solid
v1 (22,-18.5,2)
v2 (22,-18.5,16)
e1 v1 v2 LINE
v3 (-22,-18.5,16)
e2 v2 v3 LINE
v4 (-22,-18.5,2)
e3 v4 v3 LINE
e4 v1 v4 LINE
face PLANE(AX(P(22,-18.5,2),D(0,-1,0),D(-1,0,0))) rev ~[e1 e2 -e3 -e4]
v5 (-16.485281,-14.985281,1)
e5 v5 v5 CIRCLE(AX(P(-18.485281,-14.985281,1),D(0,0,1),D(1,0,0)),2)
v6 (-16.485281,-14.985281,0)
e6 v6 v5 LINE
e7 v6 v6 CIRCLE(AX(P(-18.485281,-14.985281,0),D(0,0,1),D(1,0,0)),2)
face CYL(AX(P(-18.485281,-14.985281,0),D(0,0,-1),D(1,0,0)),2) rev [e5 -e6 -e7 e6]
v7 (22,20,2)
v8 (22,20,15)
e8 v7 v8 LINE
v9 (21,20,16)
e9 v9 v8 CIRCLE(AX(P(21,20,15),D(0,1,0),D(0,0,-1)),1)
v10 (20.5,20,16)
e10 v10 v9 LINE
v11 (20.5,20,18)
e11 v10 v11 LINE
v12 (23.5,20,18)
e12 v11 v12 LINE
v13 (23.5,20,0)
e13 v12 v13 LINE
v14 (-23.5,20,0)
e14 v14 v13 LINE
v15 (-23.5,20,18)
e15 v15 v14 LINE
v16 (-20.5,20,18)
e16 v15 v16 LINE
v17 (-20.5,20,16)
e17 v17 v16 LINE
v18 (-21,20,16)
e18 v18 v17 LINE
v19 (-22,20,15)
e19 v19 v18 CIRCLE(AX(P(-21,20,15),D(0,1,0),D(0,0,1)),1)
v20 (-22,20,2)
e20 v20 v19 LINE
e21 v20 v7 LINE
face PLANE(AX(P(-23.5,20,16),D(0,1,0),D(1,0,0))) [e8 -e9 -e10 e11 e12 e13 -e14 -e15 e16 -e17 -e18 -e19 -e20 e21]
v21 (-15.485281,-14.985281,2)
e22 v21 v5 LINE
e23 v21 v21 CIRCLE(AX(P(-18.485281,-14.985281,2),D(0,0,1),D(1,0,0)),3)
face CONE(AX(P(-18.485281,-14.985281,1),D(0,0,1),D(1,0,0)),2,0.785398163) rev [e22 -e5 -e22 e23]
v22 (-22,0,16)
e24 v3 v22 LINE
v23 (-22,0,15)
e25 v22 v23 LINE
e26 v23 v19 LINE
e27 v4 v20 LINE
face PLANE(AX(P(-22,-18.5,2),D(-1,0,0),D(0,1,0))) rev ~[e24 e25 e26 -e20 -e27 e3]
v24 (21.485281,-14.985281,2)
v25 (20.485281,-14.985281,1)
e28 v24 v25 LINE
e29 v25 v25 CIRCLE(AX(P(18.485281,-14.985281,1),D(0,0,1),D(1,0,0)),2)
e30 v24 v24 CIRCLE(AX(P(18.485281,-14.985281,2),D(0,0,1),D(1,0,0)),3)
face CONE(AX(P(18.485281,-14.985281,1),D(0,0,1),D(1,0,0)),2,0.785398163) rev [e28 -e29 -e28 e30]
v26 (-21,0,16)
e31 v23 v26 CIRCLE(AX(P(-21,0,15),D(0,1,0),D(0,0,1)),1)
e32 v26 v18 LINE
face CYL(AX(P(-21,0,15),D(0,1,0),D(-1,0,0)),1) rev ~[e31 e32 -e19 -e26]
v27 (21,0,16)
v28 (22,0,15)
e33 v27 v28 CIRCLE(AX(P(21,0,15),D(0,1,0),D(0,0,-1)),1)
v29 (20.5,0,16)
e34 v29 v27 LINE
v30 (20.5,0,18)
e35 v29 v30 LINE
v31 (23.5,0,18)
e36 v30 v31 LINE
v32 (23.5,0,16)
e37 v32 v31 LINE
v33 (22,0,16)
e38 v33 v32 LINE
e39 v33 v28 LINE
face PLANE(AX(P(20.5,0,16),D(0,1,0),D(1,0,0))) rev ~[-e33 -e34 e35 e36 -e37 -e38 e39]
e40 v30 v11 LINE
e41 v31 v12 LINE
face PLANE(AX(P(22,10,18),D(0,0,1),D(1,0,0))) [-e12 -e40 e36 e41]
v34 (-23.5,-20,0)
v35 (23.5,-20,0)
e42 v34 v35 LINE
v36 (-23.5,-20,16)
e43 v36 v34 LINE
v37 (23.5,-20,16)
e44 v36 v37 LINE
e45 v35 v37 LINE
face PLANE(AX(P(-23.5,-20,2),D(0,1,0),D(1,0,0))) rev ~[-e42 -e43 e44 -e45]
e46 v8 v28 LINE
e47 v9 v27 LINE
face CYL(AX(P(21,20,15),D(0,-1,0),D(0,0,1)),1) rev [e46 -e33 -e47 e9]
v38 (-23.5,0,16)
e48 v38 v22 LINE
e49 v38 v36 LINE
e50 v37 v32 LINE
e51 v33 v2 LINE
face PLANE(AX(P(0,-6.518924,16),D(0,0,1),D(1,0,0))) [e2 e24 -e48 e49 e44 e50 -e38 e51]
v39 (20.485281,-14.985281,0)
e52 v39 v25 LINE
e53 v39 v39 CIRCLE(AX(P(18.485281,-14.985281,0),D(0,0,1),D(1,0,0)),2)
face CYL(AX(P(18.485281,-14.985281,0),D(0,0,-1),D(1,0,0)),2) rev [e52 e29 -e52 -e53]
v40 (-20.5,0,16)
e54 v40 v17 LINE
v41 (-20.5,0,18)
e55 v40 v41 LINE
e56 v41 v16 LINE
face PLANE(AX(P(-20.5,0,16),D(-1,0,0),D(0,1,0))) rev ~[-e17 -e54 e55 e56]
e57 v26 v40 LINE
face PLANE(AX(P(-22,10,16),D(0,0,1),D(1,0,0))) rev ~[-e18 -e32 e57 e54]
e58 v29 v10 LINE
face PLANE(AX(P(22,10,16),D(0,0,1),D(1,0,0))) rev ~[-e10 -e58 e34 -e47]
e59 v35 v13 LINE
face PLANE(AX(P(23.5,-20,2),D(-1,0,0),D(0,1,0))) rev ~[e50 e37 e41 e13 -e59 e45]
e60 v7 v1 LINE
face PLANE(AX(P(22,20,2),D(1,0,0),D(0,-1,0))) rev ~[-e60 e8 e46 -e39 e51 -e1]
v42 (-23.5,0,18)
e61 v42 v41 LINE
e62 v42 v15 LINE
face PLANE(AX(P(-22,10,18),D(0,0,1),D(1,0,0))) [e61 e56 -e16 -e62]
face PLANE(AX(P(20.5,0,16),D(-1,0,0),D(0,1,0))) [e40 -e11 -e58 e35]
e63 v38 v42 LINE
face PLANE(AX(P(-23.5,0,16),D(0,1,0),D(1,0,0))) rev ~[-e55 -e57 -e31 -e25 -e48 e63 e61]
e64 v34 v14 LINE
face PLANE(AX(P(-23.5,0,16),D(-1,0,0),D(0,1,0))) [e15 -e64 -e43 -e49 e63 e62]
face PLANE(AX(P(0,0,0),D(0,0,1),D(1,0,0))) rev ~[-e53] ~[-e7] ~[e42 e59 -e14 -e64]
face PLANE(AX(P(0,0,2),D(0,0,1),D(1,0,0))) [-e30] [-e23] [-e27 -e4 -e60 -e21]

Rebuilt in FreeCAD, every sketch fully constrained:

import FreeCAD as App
import Part
import Sketcher

V = App.Vector
Q = App.Units.Quantity


def edges_at(feature, points):
    """Names of the edges that pass closest to the given points."""
    edges = feature.Shape.Edges
    near = lambda p: min(range(len(edges)), key=lambda i: edges[i].distToShape(Part.Vertex(*p))[0])
    return sorted({f"Edge{near(p) + 1}" for p in points})

doc = App.newDocument("Part")
body = doc.addObject("PartDesign::Body", "Body")

sketch1 = body.newObject("Sketcher::SketchObject", "Sketch")
sketch1.AttachmentSupport = (doc.getObject("XY_Plane"), [""])
sketch1.MapMode = "FlatFace"
sketch1.addGeometry([
    Part.LineSegment(V(-23.5, 20, 0), V(-23.5, -20, 0)),
    Part.LineSegment(V(-23.5, -20, 0), V(23.5, -20, 0)),
    Part.LineSegment(V(23.5, -20, 0), V(23.5, 20, 0)),
    Part.LineSegment(V(23.5, 20, 0), V(-23.5, 20, 0)),
    Part.Circle(V(-18.5, -15, 0), V(0, 0, 1), 2),
    Part.Circle(V(18.5, -15, 0), V(0, 0, 1), 2),
], False)
sketch1.addConstraint([
    Sketcher.Constraint("Coincident", 0, 2, 1, 1),
    Sketcher.Constraint("Coincident", 1, 2, 2, 1),
    Sketcher.Constraint("Coincident", 2, 2, 3, 1),
    Sketcher.Constraint("Coincident", 3, 2, 0, 1),
    Sketcher.Constraint("Vertical", 0),
    Sketcher.Constraint("Horizontal", 1),
    Sketcher.Constraint("Vertical", 2),
    Sketcher.Constraint("Horizontal", 3),
    Sketcher.Constraint("Equal", 4, 5),
    Sketcher.Constraint("Symmetric", 0, 2, 2, 2, -1, 1),
    Sketcher.Constraint("Symmetric", 4, 3, 5, 3, -2),
    Sketcher.Constraint("Diameter", 4, Q("4 mm")),
    Sketcher.Constraint("DistanceX", 1, 1, 1, 2, Q("47 mm")),
    Sketcher.Constraint("DistanceY", 0, 2, 0, 1, Q("40 mm")),
    Sketcher.Constraint("DistanceX", 4, 3, -1, 1, Q("18.485281 mm")),
    Sketcher.Constraint("DistanceY", 4, 3, -1, 1, Q("14.985281 mm")),
])
pad1 = body.newObject("PartDesign::Pad", "Pad")
pad1.Profile = sketch1
pad1.Length = 2

sketch2 = body.newObject("Sketcher::SketchObject", "Sketch001")
sketch2.AttachmentSupport = (doc.getObject("XY_Plane"), [""])
sketch2.MapMode = "FlatFace"
sketch2.AttachmentOffset = App.Placement(V(0, 0, 2), App.Rotation())
sketch2.addGeometry([
    Part.LineSegment(V(-23.5, -20, 0), V(23.5, -20, 0)),
    Part.LineSegment(V(23.5, -20, 0), V(23.5, 20, 0)),
    Part.LineSegment(V(23.5, 20, 0), V(22, 20, 0)),
    Part.LineSegment(V(22, 20, 0), V(22, -18.5, 0)),
    Part.LineSegment(V(22, -18.5, 0), V(-22, -18.5, 0)),
    Part.LineSegment(V(-22, -18.5, 0), V(-22, 20, 0)),
    Part.LineSegment(V(-22, 20, 0), V(-23.5, 20, 0)),
    Part.LineSegment(V(-23.5, 20, 0), V(-23.5, -20, 0)),
], False)
sketch2.addConstraint([
    Sketcher.Constraint("Coincident", 0, 2, 1, 1),
    Sketcher.Constraint("Coincident", 1, 2, 2, 1),
    Sketcher.Constraint("Coincident", 2, 2, 3, 1),
    Sketcher.Constraint("Coincident", 3, 2, 4, 1),
    Sketcher.Constraint("Coincident", 4, 2, 5, 1),
    Sketcher.Constraint("Coincident", 5, 2, 6, 1),
    Sketcher.Constraint("Coincident", 6, 2, 7, 1),
    Sketcher.Constraint("Coincident", 7, 2, 0, 1),
    Sketcher.Constraint("Horizontal", 0),
    Sketcher.Constraint("Vertical", 1),
    Sketcher.Constraint("Horizontal", 2),
    Sketcher.Constraint("Vertical", 3),
    Sketcher.Constraint("Horizontal", 4),
    Sketcher.Constraint("Vertical", 5),
    Sketcher.Constraint("Horizontal", 6),
    Sketcher.Constraint("Vertical", 7),
    Sketcher.Constraint("Symmetric", 0, 2, 6, 2, -1, 1),
    Sketcher.Constraint("Symmetric", 2, 2, 5, 2, -2),
    Sketcher.Constraint("DistanceX", 0, 1, 0, 2, Q("47 mm")),
    Sketcher.Constraint("DistanceX", 4, 2, 4, 1, Q("44 mm")),
    Sketcher.Constraint("DistanceY", 1, 1, 1, 2, Q("40 mm")),
    Sketcher.Constraint("DistanceY", 3, 2, 3, 1, Q("38.5 mm")),
])
pad2 = body.newObject("PartDesign::Pad", "Pad001")
pad2.Profile = sketch2
pad2.Length = 14

sketch3 = body.newObject("Sketcher::SketchObject", "Sketch002")
sketch3.AttachmentSupport = (doc.getObject("XY_Plane"), [""])
sketch3.MapMode = "FlatFace"
sketch3.AttachmentOffset = App.Placement(V(0, 0, 16), App.Rotation())
sketch3.addGeometry([
    Part.LineSegment(V(-23.5, 20, 0), V(-23.5, 0, 0)),
    Part.LineSegment(V(-23.5, 0, 0), V(-20.5, 0, 0)),
    Part.LineSegment(V(-20.5, 0, 0), V(-20.5, 20, 0)),
    Part.LineSegment(V(-20.5, 20, 0), V(-23.5, 20, 0)),
    Part.LineSegment(V(20.5, 20, 0), V(20.5, 0, 0)),
    Part.LineSegment(V(20.5, 0, 0), V(23.5, 0, 0)),
    Part.LineSegment(V(23.5, 0, 0), V(23.5, 20, 0)),
    Part.LineSegment(V(23.5, 20, 0), V(20.5, 20, 0)),
], False)
sketch3.addConstraint([
    Sketcher.Constraint("Coincident", 0, 2, 1, 1),
    Sketcher.Constraint("Coincident", 1, 2, 2, 1),
    Sketcher.Constraint("Coincident", 2, 2, 3, 1),
    Sketcher.Constraint("Coincident", 3, 2, 0, 1),
    Sketcher.Constraint("Coincident", 4, 2, 5, 1),
    Sketcher.Constraint("Coincident", 5, 2, 6, 1),
    Sketcher.Constraint("Coincident", 6, 2, 7, 1),
    Sketcher.Constraint("Coincident", 7, 2, 4, 1),
    Sketcher.Constraint("Vertical", 0),
    Sketcher.Constraint("Horizontal", 1),
    Sketcher.Constraint("Vertical", 2),
    Sketcher.Constraint("Horizontal", 3),
    Sketcher.Constraint("Vertical", 4),
    Sketcher.Constraint("Horizontal", 5),
    Sketcher.Constraint("Vertical", 6),
    Sketcher.Constraint("Horizontal", 7),
    Sketcher.Constraint("Symmetric", 1, 2, 4, 2, -1, 1),
    Sketcher.Constraint("Symmetric", 0, 2, 5, 2, -2),
    Sketcher.Constraint("Horizontal", 3, 2, 6, 2),
    Sketcher.Constraint("DistanceX", 1, 1, 1, 2, Q("3 mm")),
    Sketcher.Constraint("DistanceY", 0, 2, 0, 1, Q("20 mm")),
    Sketcher.Constraint("DistanceX", 1, 2, 4, 2, Q("41 mm")),
])
pad3 = body.newObject("PartDesign::Pad", "Pad002")
pad3.Profile = sketch3
pad3.Length = 2
doc.recompute()

fillet = body.newObject("PartDesign::Fillet", "Fillet")
fillet.Base = (pad3, edges_at(pad3, [(22, 10, 16)]))
fillet.Radius = 1
doc.recompute()

fillet2 = body.newObject("PartDesign::Fillet", "Fillet001")
fillet2.Base = (fillet, edges_at(fillet, [(-22, 10, 16)]))
fillet2.Radius = 1
doc.recompute()

chamfer = body.newObject("PartDesign::Chamfer", "Chamfer")
chamfer.Base = (fillet2, edges_at(fillet2, [(16.485, -14.985, 2), (-20.485, -14.985, 2)]))
chamfer.Size = 1

doc.recompute()
